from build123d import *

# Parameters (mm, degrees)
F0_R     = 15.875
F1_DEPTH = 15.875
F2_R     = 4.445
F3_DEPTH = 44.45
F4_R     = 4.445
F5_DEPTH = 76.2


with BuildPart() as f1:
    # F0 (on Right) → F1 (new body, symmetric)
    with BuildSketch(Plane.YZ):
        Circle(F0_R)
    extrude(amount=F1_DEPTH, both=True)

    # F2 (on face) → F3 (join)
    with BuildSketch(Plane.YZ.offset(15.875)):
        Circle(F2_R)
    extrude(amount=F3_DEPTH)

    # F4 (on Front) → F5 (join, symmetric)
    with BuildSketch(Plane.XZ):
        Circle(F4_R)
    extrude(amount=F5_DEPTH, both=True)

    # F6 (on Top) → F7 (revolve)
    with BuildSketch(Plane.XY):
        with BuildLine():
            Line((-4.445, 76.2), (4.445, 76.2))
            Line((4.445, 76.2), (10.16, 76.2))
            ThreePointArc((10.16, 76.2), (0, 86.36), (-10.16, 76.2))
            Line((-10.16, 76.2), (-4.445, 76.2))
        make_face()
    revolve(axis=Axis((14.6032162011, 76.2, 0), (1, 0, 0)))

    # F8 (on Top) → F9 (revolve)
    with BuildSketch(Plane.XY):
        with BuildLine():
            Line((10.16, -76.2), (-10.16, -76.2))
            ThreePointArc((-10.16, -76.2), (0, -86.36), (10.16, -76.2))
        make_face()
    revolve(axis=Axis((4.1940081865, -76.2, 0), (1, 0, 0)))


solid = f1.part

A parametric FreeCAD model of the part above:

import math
import FreeCAD as App
import Part
import Sketcher
from FreeCAD import Vector
Q = App.Units.Quantity

doc = App.newDocument("Part")
body = doc.addObject("PartDesign::Body", "Body")

# Sketch on YZ plane
sketch1 = body.newObject("Sketcher::SketchObject", "Sketch")
sketch1.AttachmentSupport = (doc.getObject("YZ_Plane"), [""])
sketch1.MapMode = "FlatFace"
sketch1.addGeometry(Part.Circle(Vector(0, 0, 0), Vector(0, 0, 1), 15.875), False)
sketch1.addConstraint([
    Sketcher.Constraint("Coincident", 0, 3, -1, 1),
    Sketcher.Constraint("Diameter", 0, Q("1.25 in")),
])
pad1 = body.newObject("PartDesign::Pad", "Pad")
pad1.Profile = sketch1
pad1.Length = Q("1.25 in")
pad1.Midplane = True

# Sketch on YZ plane
sketch2 = body.newObject("Sketcher::SketchObject", "Sketch001")
sketch2.AttachmentSupport = (doc.getObject("YZ_Plane"), [""])
sketch2.MapMode = "FlatFace"
sketch2.AttachmentOffset = App.Placement(Vector(0, 0, 0.625 * 25.4), App.Rotation())
sketch2.addGeometry(Part.Circle(Vector(0, 0, 0), Vector(0, 0, 1), 4.445), False)
sketch2.addConstraint([
    Sketcher.Constraint("Coincident", 0, 3, -1, 1),
    Sketcher.Constraint("Diameter", 0, Q("0.35 in")),
])
pad2 = body.newObject("PartDesign::Pad", "Pad001")
pad2.Profile = sketch2
pad2.Length = Q("1.75 in")

# Sketch on XZ plane
sketch3 = body.newObject("Sketcher::SketchObject", "Sketch002")
sketch3.AttachmentSupport = (doc.getObject("XZ_Plane"), [""])
sketch3.MapMode = "FlatFace"
sketch3.addGeometry(Part.Circle(Vector(0, 0, 0), Vector(0, 0, 1), 4.445), False)
sketch3.addConstraint([
    Sketcher.Constraint("Coincident", 0, 3, -1, 1),
    Sketcher.Constraint("Diameter", 0, Q("0.35 in")),
])
pad3 = body.newObject("PartDesign::Pad", "Pad002")
pad3.Profile = sketch3
pad3.Length = Q("6 in")
pad3.Midplane = True

# Sketch on XY plane
sketch4 = body.newObject("Sketcher::SketchObject", "Sketch003")
sketch4.AttachmentSupport = (doc.getObject("XY_Plane"), [""])
sketch4.MapMode = "FlatFace"
sketch4.addGeometry([
    Part.ArcOfCircle(Part.Circle(Vector(0, 76.2, 0), Vector(0, 0, 1), 10.16), math.radians(0), math.radians(180)),
    Part.LineSegment(Vector(-10.16, 76.2, 0), Vector(10.16, 76.2, 0)),
], False)
sketch4.addGeometry(Part.LineSegment(Vector(-10.16, 76.2, 0), Vector(10.16, 76.2, 0)), True)  # axis
sketch4.addConstraint([
    Sketcher.Constraint("Coincident", 0, 1, 1, 2),
    Sketcher.Constraint("Coincident", 1, 1, 0, 2),
    Sketcher.Constraint("Horizontal", 1),
    Sketcher.Constraint("Horizontal", 2),
    Sketcher.Constraint("Coincident", 2, 1, 1, 1),
    Sketcher.Constraint("PointOnObject", 0, 3, -2),
    Sketcher.Constraint("Equal", 1, 2),
    Sketcher.Constraint("Radius", 0, Q("0.4 in")),
    Sketcher.Constraint("DistanceY", -1, 1, 0, 3, Q("3 in")),
    Sketcher.Constraint("DistanceY", -1, 1, 0, 1, Q("3 in")),
])
revolution = body.newObject("PartDesign::Revolution", "Revolution")
revolution.Profile = sketch4
revolution.ReferenceAxis = (sketch4, ["Axis0"])
revolution.Angle = 360

# Sketch on XY plane
sketch5 = body.newObject("Sketcher::SketchObject", "Sketch004")
sketch5.AttachmentSupport = (doc.getObject("XY_Plane"), [""])
sketch5.MapMode = "FlatFace"
sketch5.addGeometry([
    Part.LineSegment(Vector(10.16, -76.2, 0), Vector(-10.16, -76.2, 0)),
    Part.ArcOfCircle(Part.Circle(Vector(0, -76.2, 0), Vector(0, 0, 1), 10.16), math.radians(180), math.radians(360)),
], False)
sketch5.addGeometry(Part.LineSegment(Vector(-10.16, -76.2, 0), Vector(10.16, -76.2, 0)), True)  # axis
sketch5.addConstraint([
    Sketcher.Constraint("Coincident", 0, 1, 1, 2),
    Sketcher.Constraint("Coincident", 1, 1, 0, 2),
    Sketcher.Constraint("Horizontal", 0),
    Sketcher.Constraint("Horizontal", 2),
    Sketcher.Constraint("Coincident", 2, 1, 1, 1),
    Sketcher.Constraint("PointOnObject", 1, 3, -2),
    Sketcher.Constraint("Horizontal", 1, 3, 0, 1),
    Sketcher.Constraint("Equal", 0, 2),
    Sketcher.Constraint("Radius", 1, Q("0.4 in")),
    Sketcher.Constraint("DistanceY", 1, 3, -1, 1, Q("3 in")),
])
revolution2 = body.newObject("PartDesign::Revolution", "Revolution001")
revolution2.Profile = sketch5
revolution2.ReferenceAxis = (sketch5, ["Axis0"])
revolution2.Angle = 360

doc.recompute()
